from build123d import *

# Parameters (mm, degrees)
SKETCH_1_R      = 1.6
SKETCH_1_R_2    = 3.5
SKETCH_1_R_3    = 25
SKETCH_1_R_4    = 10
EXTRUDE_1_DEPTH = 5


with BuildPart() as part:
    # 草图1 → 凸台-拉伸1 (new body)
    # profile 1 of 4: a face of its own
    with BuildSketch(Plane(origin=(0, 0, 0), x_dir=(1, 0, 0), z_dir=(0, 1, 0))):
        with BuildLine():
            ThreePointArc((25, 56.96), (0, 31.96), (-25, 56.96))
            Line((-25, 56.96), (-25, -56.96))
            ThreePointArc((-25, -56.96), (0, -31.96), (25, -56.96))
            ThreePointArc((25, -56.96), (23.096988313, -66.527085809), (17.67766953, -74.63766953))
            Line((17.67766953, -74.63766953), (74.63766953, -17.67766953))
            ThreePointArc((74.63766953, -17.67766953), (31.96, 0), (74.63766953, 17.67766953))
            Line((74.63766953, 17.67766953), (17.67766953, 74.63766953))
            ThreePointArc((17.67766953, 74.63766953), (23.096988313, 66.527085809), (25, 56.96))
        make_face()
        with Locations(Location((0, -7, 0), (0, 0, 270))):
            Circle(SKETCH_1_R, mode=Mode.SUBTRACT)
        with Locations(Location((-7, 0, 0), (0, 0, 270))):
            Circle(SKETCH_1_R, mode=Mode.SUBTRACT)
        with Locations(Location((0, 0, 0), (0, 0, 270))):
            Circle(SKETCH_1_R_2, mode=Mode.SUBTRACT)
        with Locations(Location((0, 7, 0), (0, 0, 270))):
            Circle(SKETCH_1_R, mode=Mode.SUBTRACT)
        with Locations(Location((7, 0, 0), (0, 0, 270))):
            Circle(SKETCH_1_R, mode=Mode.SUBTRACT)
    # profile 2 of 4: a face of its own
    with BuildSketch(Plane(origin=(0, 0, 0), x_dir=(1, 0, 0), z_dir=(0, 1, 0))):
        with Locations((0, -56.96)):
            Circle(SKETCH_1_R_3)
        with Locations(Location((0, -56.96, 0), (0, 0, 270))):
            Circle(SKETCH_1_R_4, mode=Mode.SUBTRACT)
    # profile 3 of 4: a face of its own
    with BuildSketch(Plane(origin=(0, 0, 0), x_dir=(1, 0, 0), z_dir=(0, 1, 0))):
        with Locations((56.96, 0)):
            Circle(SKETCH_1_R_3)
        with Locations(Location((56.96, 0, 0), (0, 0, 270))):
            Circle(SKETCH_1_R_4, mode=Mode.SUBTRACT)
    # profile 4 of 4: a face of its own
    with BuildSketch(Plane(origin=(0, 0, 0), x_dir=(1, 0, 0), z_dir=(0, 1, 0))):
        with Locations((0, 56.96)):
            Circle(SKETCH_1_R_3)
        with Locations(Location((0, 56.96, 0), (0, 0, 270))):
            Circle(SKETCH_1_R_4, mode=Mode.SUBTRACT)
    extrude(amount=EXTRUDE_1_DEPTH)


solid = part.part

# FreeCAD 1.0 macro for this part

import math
import FreeCAD as App
import Part
import Sketcher
from FreeCAD import Vector
Q = App.Units.Quantity

doc = App.newDocument("Part")
body = doc.addObject("PartDesign::Body", "Body")

sketch1 = body.newObject("Sketcher::SketchObject", "Sketch")
sketch1.AttachmentSupport = (doc.getObject("XZ_Plane"), [""])
sketch1.MapMode = "FlatFace"
sketch1.addGeometry(Part.LineSegment(Vector(-25, -56.96, 0), Vector(-25, 56.96, 0)), False)
sketch1.addGeometry(Part.ArcOfCircle(Part.Circle(Vector(0, 56.96, 0), Vector(0, 0, 1), 25), math.radians(45), math.radians(180)), False)
sketch1.addGeometry(Part.LineSegment(Vector(17.67767, 74.63767, 0), Vector(74.63767, 17.67767, 0)), False)
sketch1.addGeometry(Part.ArcOfCircle(Part.Circle(Vector(56.96, 0, 0), Vector(0, 0, 1), 25), math.radians(-45), math.radians(45)), False)
sketch1.addGeometry(Part.LineSegment(Vector(74.63767, -17.67767, 0), Vector(17.67767, -74.63767, 0)), False)
sketch1.addGeometry(Part.ArcOfCircle(Part.Circle(Vector(0, -56.96, 0), Vector(0, 0, 1), 25), math.radians(180), math.radians(315)), False)
sketch1.addGeometry(Part.Circle(Vector(0, 7, 0), Vector(0, 0, 1), 1.6), False)
sketch1.addGeometry(Part.Circle(Vector(-7, 0, 0), Vector(0, 0, 1), 1.6), False)
sketch1.addGeometry(Part.Circle(Vector(0, 0, 0), Vector(0, 0, 1), 3.5), False)
sketch1.addGeometry(Part.Circle(Vector(7, 0, 0), Vector(0, 0, 1), 1.6), False)
sketch1.addGeometry(Part.Circle(Vector(0, -7, 0), Vector(0, 0, 1), 1.6), False)
sketch1.addGeometry(Part.Circle(Vector(0, -56.96, 0), Vector(0, 0, 1), 10), False)
sketch1.addGeometry(Part.Circle(Vector(0, 56.96, 0), Vector(0, 0, 1), 10), False)
sketch1.addGeometry(Part.Circle(Vector(56.96, 0, 0), Vector(0, 0, 1), 10), False)
sketch1.addConstraint(Sketcher.Constraint("Tangent", 0, 2, 1, 2))
sketch1.addConstraint(Sketcher.Constraint("Tangent", 1, 1, 2, 1))
sketch1.addConstraint(Sketcher.Constraint("Tangent", 2, 2, 3, 2))
sketch1.addConstraint(Sketcher.Constraint("Tangent", 3, 1, 4, 1))
sketch1.addConstraint(Sketcher.Constraint("Tangent", 4, 2, 5, 2))
sketch1.addConstraint(Sketcher.Constraint("Tangent", 5, 1, 0, 1))
sketch1.addConstraint(Sketcher.Constraint("Vertical", 0))
sketch1.addConstraint(Sketcher.Constraint("Coincident", 8, 3, -1, 1))
sketch1.addConstraint(Sketcher.Constraint("Coincident", 11, 3, 5, 3))
sketch1.addConstraint(Sketcher.Constraint("Coincident", 12, 3, 1, 3))
sketch1.addConstraint(Sketcher.Constraint("Coincident", 13, 3, 3, 3))
sketch1.addConstraint(Sketcher.Constraint("Equal", 1, 3))
sketch1.addConstraint(Sketcher.Constraint("Equal", 3, 5))
sketch1.addConstraint(Sketcher.Constraint("Equal", 6, 7))
sketch1.addConstraint(Sketcher.Constraint("Equal", 7, 9))
sketch1.addConstraint(Sketcher.Constraint("Equal", 9, 10))
sketch1.addConstraint(Sketcher.Constraint("Equal", 11, 12))
sketch1.addConstraint(Sketcher.Constraint("Equal", 12, 13))
sketch1.addConstraint(Sketcher.Constraint("Symmetric", 1, 3, 5, 3, -1, 1))
sketch1.addConstraint(Sketcher.Constraint("Symmetric", 7, 3, 9, 3, -1, 1))
sketch1.addConstraint(Sketcher.Constraint("Symmetric", 6, 3, 10, 3, -1, 1))
sketch1.addConstraint(Sketcher.Constraint("PointOnObject", 3, 3, -1))
sketch1.addConstraint(Sketcher.Constraint("PointOnObject", 6, 3, -2))
sketch1.addConstraint(Sketcher.Constraint("PointOnObject", 7, 3, -1))
sketch1.addConstraint(Sketcher.Constraint("Perpendicular", 2, 4))
sketch1.addConstraint(Sketcher.Constraint("Diameter", 8, Q("7 mm")))
sketch1.addConstraint(Sketcher.Constraint("Diameter", 11, Q("20 mm")))
sketch1.addConstraint(Sketcher.Constraint("Radius", 1, Q("25 mm")))
sketch1.addConstraint(Sketcher.Constraint("Diameter", 6, Q("3.2 mm")))
sketch1.addConstraint(Sketcher.Constraint("DistanceY", -1, 1, 6, 3, Q("7 mm")))
sketch1.addConstraint(Sketcher.Constraint("DistanceX", 7, 3, -1, 1, Q("7 mm")))
sketch1.addConstraint(Sketcher.Constraint("DistanceY", 0, 1, 0, 2, Q("113.92 mm")))
pad1 = body.newObject("PartDesign::Pad", "Pad")
pad1.Profile = sketch1
pad1.Length = 5
pad1.Reversed = True

doc.recompute()
